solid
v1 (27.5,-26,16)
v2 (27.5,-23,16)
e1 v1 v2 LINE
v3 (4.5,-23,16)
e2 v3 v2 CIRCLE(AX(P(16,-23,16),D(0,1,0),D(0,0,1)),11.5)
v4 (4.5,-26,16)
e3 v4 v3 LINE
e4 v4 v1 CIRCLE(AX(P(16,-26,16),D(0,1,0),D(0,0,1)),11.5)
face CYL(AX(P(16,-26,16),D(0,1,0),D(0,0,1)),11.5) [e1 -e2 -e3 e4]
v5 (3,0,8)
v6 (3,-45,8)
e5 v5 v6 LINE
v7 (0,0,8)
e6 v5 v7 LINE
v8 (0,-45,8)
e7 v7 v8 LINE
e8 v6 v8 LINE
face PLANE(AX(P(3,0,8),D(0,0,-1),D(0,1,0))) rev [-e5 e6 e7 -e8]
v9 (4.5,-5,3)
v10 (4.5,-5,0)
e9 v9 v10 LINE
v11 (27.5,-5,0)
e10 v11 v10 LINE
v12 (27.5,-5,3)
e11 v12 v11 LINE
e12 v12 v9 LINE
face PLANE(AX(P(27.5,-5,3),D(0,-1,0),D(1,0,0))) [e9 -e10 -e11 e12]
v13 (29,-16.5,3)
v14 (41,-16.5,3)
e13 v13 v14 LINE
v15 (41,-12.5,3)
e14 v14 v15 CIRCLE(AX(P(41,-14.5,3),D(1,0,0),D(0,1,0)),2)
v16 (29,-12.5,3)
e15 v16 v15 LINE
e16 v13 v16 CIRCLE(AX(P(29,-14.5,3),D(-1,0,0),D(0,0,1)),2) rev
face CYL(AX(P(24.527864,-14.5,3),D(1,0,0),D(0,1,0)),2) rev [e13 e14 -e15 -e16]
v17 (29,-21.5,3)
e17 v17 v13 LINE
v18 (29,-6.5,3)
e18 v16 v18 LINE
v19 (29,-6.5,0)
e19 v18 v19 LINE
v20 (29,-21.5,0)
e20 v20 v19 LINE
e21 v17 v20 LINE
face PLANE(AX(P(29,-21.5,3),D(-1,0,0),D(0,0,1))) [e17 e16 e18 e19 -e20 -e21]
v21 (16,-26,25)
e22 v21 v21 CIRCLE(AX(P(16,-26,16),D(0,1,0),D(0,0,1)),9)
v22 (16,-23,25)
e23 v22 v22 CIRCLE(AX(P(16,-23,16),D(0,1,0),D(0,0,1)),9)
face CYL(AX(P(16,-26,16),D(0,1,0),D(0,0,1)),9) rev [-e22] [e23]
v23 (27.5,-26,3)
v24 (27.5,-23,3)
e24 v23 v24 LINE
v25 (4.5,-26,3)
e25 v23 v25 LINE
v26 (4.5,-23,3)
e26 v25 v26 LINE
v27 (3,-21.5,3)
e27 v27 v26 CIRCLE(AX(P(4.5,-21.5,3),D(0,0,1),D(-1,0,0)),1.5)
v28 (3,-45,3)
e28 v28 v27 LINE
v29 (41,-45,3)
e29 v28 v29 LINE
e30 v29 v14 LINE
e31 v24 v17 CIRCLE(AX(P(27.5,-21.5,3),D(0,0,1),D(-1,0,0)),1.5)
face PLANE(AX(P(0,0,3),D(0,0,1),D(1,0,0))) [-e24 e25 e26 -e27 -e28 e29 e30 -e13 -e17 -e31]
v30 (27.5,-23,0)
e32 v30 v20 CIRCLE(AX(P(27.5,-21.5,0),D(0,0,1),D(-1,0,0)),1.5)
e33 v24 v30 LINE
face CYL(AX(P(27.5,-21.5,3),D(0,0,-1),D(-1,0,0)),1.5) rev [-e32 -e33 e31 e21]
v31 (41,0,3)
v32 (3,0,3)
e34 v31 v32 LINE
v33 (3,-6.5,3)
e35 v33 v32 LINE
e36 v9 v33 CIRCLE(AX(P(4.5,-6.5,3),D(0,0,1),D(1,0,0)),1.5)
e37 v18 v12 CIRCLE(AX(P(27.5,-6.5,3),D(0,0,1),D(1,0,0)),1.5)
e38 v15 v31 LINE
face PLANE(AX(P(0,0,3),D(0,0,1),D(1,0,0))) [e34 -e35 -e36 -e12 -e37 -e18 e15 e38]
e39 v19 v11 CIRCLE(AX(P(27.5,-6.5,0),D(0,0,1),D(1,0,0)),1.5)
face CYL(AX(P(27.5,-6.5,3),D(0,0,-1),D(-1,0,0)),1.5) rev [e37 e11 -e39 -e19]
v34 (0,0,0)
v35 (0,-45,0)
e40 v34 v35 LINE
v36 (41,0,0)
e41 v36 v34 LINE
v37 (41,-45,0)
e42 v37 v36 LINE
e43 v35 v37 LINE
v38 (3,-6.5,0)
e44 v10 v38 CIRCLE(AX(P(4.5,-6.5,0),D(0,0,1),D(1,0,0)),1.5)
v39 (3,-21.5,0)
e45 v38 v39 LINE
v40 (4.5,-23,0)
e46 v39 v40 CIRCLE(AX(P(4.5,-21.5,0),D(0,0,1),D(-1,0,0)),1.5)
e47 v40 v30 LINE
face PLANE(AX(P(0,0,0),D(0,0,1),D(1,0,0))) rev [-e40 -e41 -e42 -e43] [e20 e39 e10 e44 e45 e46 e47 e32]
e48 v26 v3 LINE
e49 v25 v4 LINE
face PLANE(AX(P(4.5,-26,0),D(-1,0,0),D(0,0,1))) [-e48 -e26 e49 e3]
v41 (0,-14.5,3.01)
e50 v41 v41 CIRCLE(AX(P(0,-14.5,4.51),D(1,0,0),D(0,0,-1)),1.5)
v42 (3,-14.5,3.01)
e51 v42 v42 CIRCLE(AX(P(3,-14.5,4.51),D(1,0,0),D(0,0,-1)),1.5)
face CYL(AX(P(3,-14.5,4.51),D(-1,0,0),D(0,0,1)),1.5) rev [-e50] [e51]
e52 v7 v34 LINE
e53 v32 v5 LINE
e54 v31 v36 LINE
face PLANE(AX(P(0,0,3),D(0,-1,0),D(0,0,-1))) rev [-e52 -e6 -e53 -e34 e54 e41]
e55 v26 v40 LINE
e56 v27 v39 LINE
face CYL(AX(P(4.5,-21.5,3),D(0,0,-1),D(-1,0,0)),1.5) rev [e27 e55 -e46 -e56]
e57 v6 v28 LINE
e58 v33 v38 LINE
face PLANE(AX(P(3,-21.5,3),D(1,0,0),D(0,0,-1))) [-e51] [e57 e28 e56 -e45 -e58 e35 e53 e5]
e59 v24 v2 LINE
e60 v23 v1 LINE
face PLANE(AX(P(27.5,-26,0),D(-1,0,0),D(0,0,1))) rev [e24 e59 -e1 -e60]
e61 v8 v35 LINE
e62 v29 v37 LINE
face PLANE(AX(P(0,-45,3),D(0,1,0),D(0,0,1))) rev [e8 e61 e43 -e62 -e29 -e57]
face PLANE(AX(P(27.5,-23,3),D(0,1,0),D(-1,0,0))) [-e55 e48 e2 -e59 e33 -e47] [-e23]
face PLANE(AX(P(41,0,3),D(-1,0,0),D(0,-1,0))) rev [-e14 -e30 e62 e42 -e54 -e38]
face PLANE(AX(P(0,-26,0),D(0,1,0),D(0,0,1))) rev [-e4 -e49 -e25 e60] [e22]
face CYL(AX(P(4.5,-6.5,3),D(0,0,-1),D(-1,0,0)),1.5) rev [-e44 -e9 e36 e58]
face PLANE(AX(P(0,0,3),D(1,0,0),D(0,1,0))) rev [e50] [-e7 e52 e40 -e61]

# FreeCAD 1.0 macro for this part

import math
import FreeCAD as App
import Part
import Sketcher
from FreeCAD import Vector


def add_polygon(sketch, points):
    """Adds a closed chain of lines whose ends are joined by coincident constraints."""
    first, n = sketch.GeometryCount, len(points)
    for a, b in zip(points, points[1:] + points[:1]):
        sketch.addGeometry(Part.LineSegment(App.Vector(*a, 0), App.Vector(*b, 0)), False)
    for i in range(n):
        sketch.addConstraint(Sketcher.Constraint("Coincident", first + i, 2, first + (i + 1) % n, 1))

doc = App.newDocument("Part")
body = doc.addObject("PartDesign::Body", "Body")

sketch1 = body.newObject("Sketcher::SketchObject", "Sketch")
sketch1.AttachmentSupport = (doc.getObject("XY_Plane"), [""])
sketch1.MapMode = "FlatFace"
add_polygon(sketch1, [(0, 0), (0, -45), (41, -45), (41, 0)])
sketch1.addGeometry(Part.ArcOfCircle(Part.Circle(Vector(27.5, -21.5, 0), Vector(0, 0, 1), 1.5), math.radians(-90), math.radians(0)), False)
sketch1.addGeometry(Part.LineSegment(Vector(27.5, -23, 0), Vector(4.5, -23, 0)), False)
sketch1.addGeometry(Part.ArcOfCircle(Part.Circle(Vector(4.5, -21.5, 0), Vector(0, 0, 1), 1.5), math.radians(180), math.radians(270)), False)
sketch1.addGeometry(Part.LineSegment(Vector(3, -21.5, 0), Vector(3, -6.5, 0)), False)
sketch1.addGeometry(Part.ArcOfCircle(Part.Circle(Vector(4.5, -6.5, 0), Vector(0, 0, 1), 1.5), math.radians(90), math.radians(180)), False)
sketch1.addGeometry(Part.LineSegment(Vector(4.5, -5, 0), Vector(27.5, -5, 0)), False)
sketch1.addGeometry(Part.ArcOfCircle(Part.Circle(Vector(27.5, -6.5, 0), Vector(0, 0, 1), 1.5), math.radians(0), math.radians(90)), False)
sketch1.addGeometry(Part.LineSegment(Vector(29, -6.5, 0), Vector(29, -21.5, 0)), False)
sketch1.addConstraint(Sketcher.Constraint("Tangent", 4, 1, 5, 1))
sketch1.addConstraint(Sketcher.Constraint("Tangent", 5, 2, 6, 2))
sketch1.addConstraint(Sketcher.Constraint("Tangent", 6, 1, 7, 1))
sketch1.addConstraint(Sketcher.Constraint("Tangent", 7, 2, 8, 2))
sketch1.addConstraint(Sketcher.Constraint("Tangent", 8, 1, 9, 1))
sketch1.addConstraint(Sketcher.Constraint("Tangent", 9, 2, 10, 2))
sketch1.addConstraint(Sketcher.Constraint("Tangent", 10, 1, 11, 1))
sketch1.addConstraint(Sketcher.Constraint("Tangent", 11, 2, 4, 2))
sketch1.addConstraint(Sketcher.Constraint("Vertical", 0))
sketch1.addConstraint(Sketcher.Constraint("Horizontal", 1))
sketch1.addConstraint(Sketcher.Constraint("Vertical", 2))
sketch1.addConstraint(Sketcher.Constraint("Horizontal", 3))
sketch1.addConstraint(Sketcher.Constraint("Horizontal", 5))
sketch1.addConstraint(Sketcher.Constraint("Vertical", 7))
sketch1.addConstraint(Sketcher.Constraint("Horizontal", 9))
sketch1.addConstraint(Sketcher.Constraint("Vertical", 11))
sketch1.addConstraint(Sketcher.Constraint("Coincident", 3, 2, -1, 1))
sketch1.addConstraint(Sketcher.Constraint("Equal", 4, 6))
sketch1.addConstraint(Sketcher.Constraint("Equal", 6, 8))
sketch1.addConstraint(Sketcher.Constraint("Equal", 8, 10))
sketch1.addConstraint(Sketcher.Constraint("Radius", 4, 1.5))
sketch1.addConstraint(Sketcher.Constraint("DistanceX", 1, 1, 1, 2, 41.0))
sketch1.addConstraint(Sketcher.Constraint("DistanceX", 5, 2, 5, 1, 23.0))
sketch1.addConstraint(Sketcher.Constraint("DistanceY", 0, 2, 0, 1, 45.0))
sketch1.addConstraint(Sketcher.Constraint("DistanceY", 7, 1, 7, 2, 15.0))
sketch1.addConstraint(Sketcher.Constraint("DistanceY", 4, 1, -1, 1, 23.0))
sketch1.addConstraint(Sketcher.Constraint("DistanceX", -1, 1, 6, 1, 3.0))
pad1 = body.newObject("PartDesign::Pad", "Pad")
pad1.Profile = sketch1
pad1.Length = 3

sketch2 = body.newObject("Sketcher::SketchObject", "Sketch001")
sketch2.AttachmentSupport = (doc.getObject("YZ_Plane"), [""])
sketch2.MapMode = "FlatFace"
add_polygon(sketch2, [(0, 8), (-45, 8), (-45, 3), (0, 3)])
sketch2.addGeometry(Part.Circle(Vector(-14.5, 4.5, 0), Vector(0, 0, 1), 1.5), False)
sketch2.addConstraint(Sketcher.Constraint("Horizontal", 0))
sketch2.addConstraint(Sketcher.Constraint("Vertical", 1))
sketch2.addConstraint(Sketcher.Constraint("Horizontal", 2))
sketch2.addConstraint(Sketcher.Constraint("Vertical", 3))
sketch2.addConstraint(Sketcher.Constraint("PointOnObject", 2, 2, -2))
sketch2.addConstraint(Sketcher.Constraint("Diameter", 4, 3.0))
sketch2.addConstraint(Sketcher.Constraint("DistanceX", 0, 2, 0, 1, 45.0))
sketch2.addConstraint(Sketcher.Constraint("DistanceY", 1, 2, 1, 1, 5.0))
sketch2.addConstraint(Sketcher.Constraint("DistanceY", -1, 1, 0, 2, 8.0))
sketch2.addConstraint(Sketcher.Constraint("DistanceX", 4, 3, -1, 1, 14.5))
sketch2.addConstraint(Sketcher.Constraint("DistanceY", -1, 1, 4, 3, 4.51))
pad2 = body.newObject("PartDesign::Pad", "Pad001")
pad2.Profile = sketch2
pad2.Length = 3

sketch3 = body.newObject("Sketcher::SketchObject", "Sketch002")
sketch3.AttachmentSupport = (doc.getObject("XZ_Plane"), [""])
sketch3.MapMode = "FlatFace"
sketch3.AttachmentOffset = App.Placement(Vector(0, 0, 23), App.Rotation())
sketch3.addGeometry(Part.LineSegment(Vector(4, 3, 0), Vector(4, 16, 0)), False)
sketch3.addGeometry(Part.ArcOfCircle(Part.Circle(Vector(16, 16, 0), Vector(0, 0, 1), 12), math.radians(0), math.radians(180)), False)
sketch3.addGeometry(Part.LineSegment(Vector(28, 16, 0), Vector(28, 3, 0)), False)
sketch3.addGeometry(Part.LineSegment(Vector(28, 3, 0), Vector(4, 3, 0)), False)
sketch3.addGeometry(Part.Circle(Vector(16, 16, 0), Vector(0, 0, 1), 9), False)
sketch3.addConstraint(Sketcher.Constraint("Tangent", 0, 2, 1, 2))
sketch3.addConstraint(Sketcher.Constraint("Tangent", 1, 1, 2, 1))
sketch3.addConstraint(Sketcher.Constraint("Coincident", 2, 2, 3, 1))
sketch3.addConstraint(Sketcher.Constraint("Coincident", 3, 2, 0, 1))
sketch3.addConstraint(Sketcher.Constraint("Vertical", 0))
sketch3.addConstraint(Sketcher.Constraint("Vertical", 2))
sketch3.addConstraint(Sketcher.Constraint("Horizontal", 3))
sketch3.addConstraint(Sketcher.Constraint("Coincident", 4, 3, 1, 3))
sketch3.addConstraint(Sketcher.Constraint("Diameter", 4, 18.0))
sketch3.addConstraint(Sketcher.Constraint("Radius", 1, 11.5))
sketch3.addConstraint(Sketcher.Constraint("DistanceY", 0, 1, 0, 2, 13.0))
sketch3.addConstraint(Sketcher.Constraint("DistanceX", -1, 1, 1, 3, 16.0))
sketch3.addConstraint(Sketcher.Constraint("DistanceY", -1, 1, 1, 3, 16.0))
pad3 = body.newObject("PartDesign::Pad", "Pad002")
pad3.Profile = sketch3
pad3.Length = 3

sketch4 = body.newObject("Sketcher::SketchObject", "Sketch003")
sketch4.AttachmentSupport = (doc.getObject("YZ_Plane"), [""])
sketch4.MapMode = "FlatFace"
sketch4.AttachmentOffset = App.Placement(Vector(0, 0, 41), App.Rotation())
sketch4.addGeometry(Part.LineSegment(Vector(-12.5, 3, 0), Vector(-16.5, 3, 0)), False)
sketch4.addGeometry(Part.ArcOfCircle(Part.Circle(Vector(-14.5, 3, 0), Vector(0, 0, 1), 2), math.radians(180), math.radians(360)), False)
sketch4.addConstraint(Sketcher.Constraint("Coincident", 0, 1, 1, 2))
sketch4.addConstraint(Sketcher.Constraint("Coincident", 1, 1, 0, 2))
sketch4.addConstraint(Sketcher.Constraint("Horizontal", 0))
sketch4.addConstraint(Sketcher.Constraint("Horizontal", 1, 3, 0, 1))
sketch4.addConstraint(Sketcher.Constraint("Radius", 1, 2.0))
sketch4.addConstraint(Sketcher.Constraint("DistanceY", -1, 1, 1, 3, 3.0))
sketch4.addConstraint(Sketcher.Constraint("DistanceX", 1, 3, -1, 1, 14.5))
pocket1 = body.newObject("PartDesign::Pocket", "Pocket")
pocket1.Profile = sketch4
pocket1.Length = 12

doc.recompute()
